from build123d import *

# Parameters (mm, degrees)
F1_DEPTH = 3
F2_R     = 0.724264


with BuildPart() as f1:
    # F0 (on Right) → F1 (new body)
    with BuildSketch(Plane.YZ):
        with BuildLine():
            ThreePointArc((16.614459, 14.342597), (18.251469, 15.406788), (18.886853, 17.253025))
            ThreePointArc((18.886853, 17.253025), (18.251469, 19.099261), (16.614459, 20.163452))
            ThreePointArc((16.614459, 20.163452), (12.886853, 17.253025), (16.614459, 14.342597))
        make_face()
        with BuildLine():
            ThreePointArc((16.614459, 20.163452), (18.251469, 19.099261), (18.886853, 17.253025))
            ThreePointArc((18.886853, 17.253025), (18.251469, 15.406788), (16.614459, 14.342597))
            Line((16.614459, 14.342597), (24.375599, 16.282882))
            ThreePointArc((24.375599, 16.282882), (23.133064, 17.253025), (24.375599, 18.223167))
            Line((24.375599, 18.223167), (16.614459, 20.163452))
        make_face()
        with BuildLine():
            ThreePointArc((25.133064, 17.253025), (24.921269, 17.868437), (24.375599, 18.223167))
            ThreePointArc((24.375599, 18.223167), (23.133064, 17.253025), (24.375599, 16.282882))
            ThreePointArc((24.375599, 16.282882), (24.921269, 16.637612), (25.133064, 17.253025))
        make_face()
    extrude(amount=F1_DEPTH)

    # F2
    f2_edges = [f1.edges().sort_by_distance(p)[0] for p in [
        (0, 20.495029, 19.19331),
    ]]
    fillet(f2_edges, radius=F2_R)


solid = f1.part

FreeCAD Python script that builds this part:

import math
import FreeCAD as App
import Part
import Sketcher

V = App.Vector
Q = App.Units.Quantity


def edges_at(feature, points):
    """Names of the edges that pass closest to the given points."""
    edges = feature.Shape.Edges
    near = lambda p: min(range(len(edges)), key=lambda i: edges[i].distToShape(Part.Vertex(*p))[0])
    return sorted({f"Edge{near(p) + 1}" for p in points})

doc = App.newDocument("Part")
body = doc.addObject("PartDesign::Body", "Body")

# Sketch on YZ plane
sketch1 = body.newObject("Sketcher::SketchObject", "Sketch")
sketch1.AttachmentSupport = (doc.getObject("YZ_Plane"), [""])
sketch1.MapMode = "FlatFace"
sketch1.addGeometry(Part.ArcOfCircle(Part.Circle(V(15.9, 17.3, 0), V(0, 0, 1), 3), math.radians(76), math.radians(284)), False)
sketch1.addGeometry(Part.LineSegment(V(16.6, 14.3, 0), V(24.4, 16.3, 0)), False)
sketch1.addGeometry(Part.ArcOfCircle(Part.Circle(V(24.1, 17.3, 0), V(0, 0, 1), 1), math.radians(-76), math.radians(0)), False)
sketch1.addGeometry(Part.ArcOfCircle(Part.Circle(V(24.1, 17.3, 0), V(0, 0, 1), 1), math.radians(0), math.radians(76)), False)
sketch1.addGeometry(Part.LineSegment(V(24.4, 18.2, 0), V(16.6, 20.2, 0)), False)
sketch1.addConstraint(Sketcher.Constraint("Tangent", 0, 2, 1, 1))
sketch1.addConstraint(Sketcher.Constraint("Tangent", 1, 2, 2, 1))
sketch1.addConstraint(Sketcher.Constraint("Tangent", 2, 2, 3, 1))
sketch1.addConstraint(Sketcher.Constraint("Tangent", 3, 2, 4, 1))
sketch1.addConstraint(Sketcher.Constraint("Tangent", 4, 2, 0, 1))
sketch1.addConstraint(Sketcher.Constraint("Equal", 2, 3))
sketch1.addConstraint(Sketcher.Constraint("Horizontal", 0, 3, 2, 3))
sketch1.addConstraint(Sketcher.Constraint("Horizontal", 3, 3, 2, 2))
sketch1.addConstraint(Sketcher.Constraint("Radius", 0, Q("3 mm")))
sketch1.addConstraint(Sketcher.Constraint("Radius", 2, Q("1 mm")))
sketch1.addConstraint(Sketcher.Constraint("Distance", 1, Q("8 mm")))
sketch1.addConstraint(Sketcher.Constraint("DistanceX", -1, 1, 1, 2, Q("24.375599 mm")))
sketch1.addConstraint(Sketcher.Constraint("DistanceY", -1, 1, 4, 2, Q("20.163452 mm")))
pad1 = body.newObject("PartDesign::Pad", "Pad")
pad1.Profile = sketch1
pad1.Length = 3
doc.recompute()

fillet = body.newObject("PartDesign::Fillet", "Fillet")
fillet.Base = (pad1, edges_at(pad1, [(0, 20.495, 19.193)]))
fillet.Radius = 0.724264

doc.recompute()
